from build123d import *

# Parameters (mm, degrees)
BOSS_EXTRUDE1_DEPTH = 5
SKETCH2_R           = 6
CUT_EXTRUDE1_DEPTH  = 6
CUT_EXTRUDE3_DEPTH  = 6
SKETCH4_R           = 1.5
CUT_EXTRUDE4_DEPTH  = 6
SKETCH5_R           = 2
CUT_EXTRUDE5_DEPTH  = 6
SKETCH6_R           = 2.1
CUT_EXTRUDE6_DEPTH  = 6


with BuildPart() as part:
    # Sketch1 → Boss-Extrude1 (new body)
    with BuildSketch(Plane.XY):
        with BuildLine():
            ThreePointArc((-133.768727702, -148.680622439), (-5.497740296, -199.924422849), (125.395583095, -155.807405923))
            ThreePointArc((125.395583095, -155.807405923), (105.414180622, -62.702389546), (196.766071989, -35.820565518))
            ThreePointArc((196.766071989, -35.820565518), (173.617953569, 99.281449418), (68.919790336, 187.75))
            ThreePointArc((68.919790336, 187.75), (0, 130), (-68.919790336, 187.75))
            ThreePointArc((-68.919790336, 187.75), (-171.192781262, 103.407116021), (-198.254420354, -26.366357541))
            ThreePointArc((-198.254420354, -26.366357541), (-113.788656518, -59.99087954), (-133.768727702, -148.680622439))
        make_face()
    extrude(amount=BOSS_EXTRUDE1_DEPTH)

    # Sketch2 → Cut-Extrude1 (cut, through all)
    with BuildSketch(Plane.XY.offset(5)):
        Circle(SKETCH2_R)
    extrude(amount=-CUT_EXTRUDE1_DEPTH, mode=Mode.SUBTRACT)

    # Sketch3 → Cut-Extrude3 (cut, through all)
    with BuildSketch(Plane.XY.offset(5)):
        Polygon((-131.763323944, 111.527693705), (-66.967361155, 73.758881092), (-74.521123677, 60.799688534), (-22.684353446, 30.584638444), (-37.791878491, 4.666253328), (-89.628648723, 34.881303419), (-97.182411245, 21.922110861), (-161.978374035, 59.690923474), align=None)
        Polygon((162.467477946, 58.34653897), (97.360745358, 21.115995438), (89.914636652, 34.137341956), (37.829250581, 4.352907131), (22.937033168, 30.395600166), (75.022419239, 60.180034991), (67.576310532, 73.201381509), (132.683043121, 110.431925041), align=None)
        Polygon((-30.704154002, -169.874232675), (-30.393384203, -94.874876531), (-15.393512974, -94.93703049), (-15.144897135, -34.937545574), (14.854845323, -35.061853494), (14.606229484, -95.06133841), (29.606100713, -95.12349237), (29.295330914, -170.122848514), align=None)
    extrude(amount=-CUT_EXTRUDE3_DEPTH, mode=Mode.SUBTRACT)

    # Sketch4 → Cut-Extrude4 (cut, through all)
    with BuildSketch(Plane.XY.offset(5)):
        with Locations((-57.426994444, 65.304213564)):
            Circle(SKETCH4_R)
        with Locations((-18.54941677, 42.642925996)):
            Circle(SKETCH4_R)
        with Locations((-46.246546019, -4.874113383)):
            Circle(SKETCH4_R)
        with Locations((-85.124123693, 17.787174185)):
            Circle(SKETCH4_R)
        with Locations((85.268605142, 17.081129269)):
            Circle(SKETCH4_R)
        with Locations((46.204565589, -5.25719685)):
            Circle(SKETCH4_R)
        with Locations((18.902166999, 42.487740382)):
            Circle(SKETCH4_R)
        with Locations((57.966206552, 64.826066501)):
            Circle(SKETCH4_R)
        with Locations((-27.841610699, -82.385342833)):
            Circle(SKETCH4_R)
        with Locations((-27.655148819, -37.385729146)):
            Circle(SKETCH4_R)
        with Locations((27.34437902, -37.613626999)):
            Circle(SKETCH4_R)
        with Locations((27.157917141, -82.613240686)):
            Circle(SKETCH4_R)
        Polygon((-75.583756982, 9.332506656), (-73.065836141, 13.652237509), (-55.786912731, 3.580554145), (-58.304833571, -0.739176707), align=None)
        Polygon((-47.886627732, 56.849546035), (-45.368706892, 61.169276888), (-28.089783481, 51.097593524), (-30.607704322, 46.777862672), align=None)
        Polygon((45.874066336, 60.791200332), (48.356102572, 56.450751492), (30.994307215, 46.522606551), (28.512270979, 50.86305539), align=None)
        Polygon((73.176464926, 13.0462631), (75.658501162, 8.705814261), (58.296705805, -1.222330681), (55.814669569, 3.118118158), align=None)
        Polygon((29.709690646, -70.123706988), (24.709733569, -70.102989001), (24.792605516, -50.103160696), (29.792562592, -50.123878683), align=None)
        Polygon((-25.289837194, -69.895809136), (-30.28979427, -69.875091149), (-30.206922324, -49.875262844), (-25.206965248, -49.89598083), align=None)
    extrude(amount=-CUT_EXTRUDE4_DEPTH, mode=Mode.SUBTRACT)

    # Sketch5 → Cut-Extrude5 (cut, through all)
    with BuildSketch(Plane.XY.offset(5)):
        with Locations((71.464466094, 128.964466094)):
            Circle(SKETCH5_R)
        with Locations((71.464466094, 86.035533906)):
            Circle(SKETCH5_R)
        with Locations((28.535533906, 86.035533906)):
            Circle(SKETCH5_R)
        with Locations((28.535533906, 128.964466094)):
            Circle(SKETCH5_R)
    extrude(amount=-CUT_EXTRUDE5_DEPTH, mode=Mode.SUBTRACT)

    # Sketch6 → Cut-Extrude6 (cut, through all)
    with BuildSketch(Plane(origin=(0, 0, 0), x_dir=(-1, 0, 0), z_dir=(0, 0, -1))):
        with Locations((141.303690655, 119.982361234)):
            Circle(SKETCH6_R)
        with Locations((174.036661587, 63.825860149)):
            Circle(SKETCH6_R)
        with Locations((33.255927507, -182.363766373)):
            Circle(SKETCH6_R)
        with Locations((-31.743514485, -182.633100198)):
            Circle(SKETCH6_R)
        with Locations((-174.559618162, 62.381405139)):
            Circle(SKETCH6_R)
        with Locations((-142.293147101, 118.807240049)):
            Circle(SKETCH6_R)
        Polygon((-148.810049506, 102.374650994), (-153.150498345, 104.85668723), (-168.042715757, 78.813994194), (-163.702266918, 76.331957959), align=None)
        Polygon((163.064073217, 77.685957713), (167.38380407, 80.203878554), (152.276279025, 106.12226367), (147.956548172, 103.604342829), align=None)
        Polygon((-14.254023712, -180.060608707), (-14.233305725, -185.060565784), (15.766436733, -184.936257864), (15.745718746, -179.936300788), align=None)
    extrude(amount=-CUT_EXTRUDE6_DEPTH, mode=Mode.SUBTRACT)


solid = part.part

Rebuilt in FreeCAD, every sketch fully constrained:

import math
import FreeCAD as App
import Part
import Sketcher

V = App.Vector
Q = App.Units.Quantity


def add_polygon(sketch, points):
    """Adds a closed chain of lines whose ends are joined by coincident constraints."""
    first, n = sketch.GeometryCount, len(points)
    for a, b in zip(points, points[1:] + points[:1]):
        sketch.addGeometry(Part.LineSegment(App.Vector(*a, 0), App.Vector(*b, 0)), False)
    for i in range(n):
        sketch.addConstraint(Sketcher.Constraint("Coincident", first + i, 2, first + (i + 1) % n, 1))

doc = App.newDocument("Part")
params = doc.addObject("Spreadsheet::Sheet", "Params")
for row, (alias, value) in enumerate([
    ("sketch1_radius", "200 mm"),
    ("sketch1_radius2", "70 mm"),
    ("pad1_length", "5 mm"),
    ("sketch2_diameter", "12 mm"),
    ("sketch3_length", "75 mm"),
    ("sketch3_length2", "60 mm"),
    ("sketch3_length3", "15 mm"),
    ("sketch4_diameter", "3 mm"),
    ("sketch4_length", "5 mm"),
    ("sketch4_length2", "20 mm"),
    ("sketch5_diameter", "4 mm"),
    ("sketch6_diameter", "4.2 mm"),
    ("sketch6_length", "5 mm"),
    ("sketch6_length2", "30 mm"),
], start=1):
    params.set(f"A{row}", alias)
    params.set(f"B{row}", "=" + value)
    params.setAlias(f"B{row}", alias)

body = doc.addObject("PartDesign::Body", "Body")

sketch1 = body.newObject("Sketcher::SketchObject", "Sketch")
sketch1.AttachmentSupport = (doc.getObject("XY_Plane"), [""])
sketch1.MapMode = "FlatFace"
sketch1.addGeometry([
    Part.ArcOfCircle(Part.Circle(V(0, 0, 0), V(0, 0, 1), 200), math.radians(-131.977879), math.radians(-51.172491)),
    Part.ArcOfCircle(Part.Circle(V(165.575753, -98.487654, 0), V(0, 0, 1), 70), math.radians(63.539804), math.radians(234.970198)),
    Part.ArcOfCircle(Part.Circle(V(0, 0, 0), V(0, 0, 1), 200), math.radians(-10.317506), math.radians(69.842684)),
    Part.ArcOfCircle(Part.Circle(V(0, 200, 0), V(0, 0, 1), 70), math.radians(-169.921342), math.radians(-10.078658)),
    Part.ArcOfCircle(Part.Circle(V(0, 0, 0), V(0, 0, 1), 200), math.radians(110.157316), math.radians(187.575457)),
    Part.ArcOfCircle(Part.Circle(V(-175.710015, -92.636636, 0), V(0, 0, 1), 70), math.radians(-53.19015), math.radians(108.787729)),
], False)
sketch1.addConstraint([
    Sketcher.Constraint("Coincident", 0, 2, 1, 2),
    Sketcher.Constraint("Coincident", 1, 1, 2, 1),
    Sketcher.Constraint("Coincident", 2, 2, 3, 2),
    Sketcher.Constraint("Coincident", 3, 1, 4, 1),
    Sketcher.Constraint("Coincident", 4, 2, 5, 2),
    Sketcher.Constraint("Coincident", 5, 1, 0, 1),
    Sketcher.Constraint("Coincident", 0, 3, -1, 1),
    Sketcher.Constraint("Coincident", 2, 3, -1, 1),
    Sketcher.Constraint("Coincident", 4, 3, -1, 1),
    Sketcher.Constraint("Equal", 0, 2),
    Sketcher.Constraint("Equal", 1, 3),
    Sketcher.Constraint("Equal", 2, 4),
    Sketcher.Constraint("Equal", 3, 5),
    Sketcher.Constraint("PointOnObject", 3, 3, -2),
    Sketcher.Constraint("Radius", 0, Q("200 mm")),
    Sketcher.Constraint("Radius", 1, Q("70 mm")),
    Sketcher.Constraint("DistanceY", -1, 1, 3, 3, Q("200 mm")),
    Sketcher.Constraint("DistanceX", -1, 1, 1, 1, Q("196.766072 mm")),
    Sketcher.Constraint("DistanceX", 4, 2, -1, 1, Q("198.25442 mm")),
    Sketcher.Constraint("DistanceX", 5, 3, 1, 3, Q("341.285768 mm")),
    Sketcher.Constraint("DistanceY", 1, 3, 5, 3, Q("5.851019 mm")),
])
sketch1.setExpression("Constraints[14]", "Params.sketch1_radius")
sketch1.setExpression("Constraints[15]", "Params.sketch1_radius2")
pad1 = body.newObject("PartDesign::Pad", "Pad")
pad1.Profile = sketch1
pad1.setExpression("Length", "Params.pad1_length")

sketch2 = body.newObject("Sketcher::SketchObject", "Sketch001")
sketch2.AttachmentSupport = (doc.getObject("XY_Plane"), [""])
sketch2.MapMode = "FlatFace"
sketch2.AttachmentOffset = App.Placement(V(0, 0, 5), App.Rotation())
sketch2.addGeometry(Part.Circle(V(0, 0, 0), V(0, 0, 1), 6), False)
sketch2.addConstraint([
    Sketcher.Constraint("Coincident", 0, 3, -1, 1),
    Sketcher.Constraint("Diameter", 0, Q("12 mm")),
])
sketch2.setExpression("Constraints[1]", "Params.sketch2_diameter")
pocket1 = body.newObject("PartDesign::Pocket", "Pocket")
pocket1.Profile = sketch2
pocket1.Type = "ThroughAll"

sketch3 = body.newObject("Sketcher::SketchObject", "Sketch002")
sketch3.AttachmentSupport = (doc.getObject("XY_Plane"), [""])
sketch3.MapMode = "FlatFace"
sketch3.AttachmentOffset = App.Placement(V(0, 0, 5), App.Rotation())
add_polygon(sketch3, [(-66.967361, 73.758881), (-131.763324, 111.527694), (-161.978374, 59.690923), (-97.182411, 21.922111), (-89.628649, 34.881303), (-37.791878, 4.666253), (-22.684353, 30.584638), (-74.521124, 60.799689)])
add_polygon(sketch3, [(97.360745, 21.115995), (162.467478, 58.346539), (132.683043, 110.431925), (67.576311, 73.201382), (75.022419, 60.180035), (22.937033, 30.3956), (37.829251, 4.352907), (89.914637, 34.137342)])
add_polygon(sketch3, [(-30.393384, -94.874877), (-30.704154, -169.874233), (29.295331, -170.122849), (29.606101, -95.123492), (14.606229, -95.061338), (14.854845, -35.061853), (-15.144897, -34.937546), (-15.393513, -94.93703)])
sketch3.addConstraint([
    Sketcher.Constraint("Perpendicular", 0, 1),
    Sketcher.Constraint("Perpendicular", 1, 2),
    Sketcher.Constraint("Perpendicular", 2, 3),
    Sketcher.Constraint("Perpendicular", 3, 4),
    Sketcher.Constraint("Perpendicular", 4, 5),
    Sketcher.Constraint("Perpendicular", 5, 6),
    Sketcher.Constraint("Perpendicular", 6, 7),
    Sketcher.Constraint("Perpendicular", 8, 9),
    Sketcher.Constraint("Perpendicular", 9, 10),
    Sketcher.Constraint("Perpendicular", 10, 11),
    Sketcher.Constraint("Perpendicular", 11, 12),
    Sketcher.Constraint("Perpendicular", 12, 13),
    Sketcher.Constraint("Perpendicular", 13, 14),
    Sketcher.Constraint("Perpendicular", 14, 15),
    Sketcher.Constraint("Perpendicular", 16, 17),
    Sketcher.Constraint("Perpendicular", 17, 18),
    Sketcher.Constraint("Perpendicular", 18, 19),
    Sketcher.Constraint("Perpendicular", 19, 20),
    Sketcher.Constraint("Perpendicular", 20, 21),
    Sketcher.Constraint("Perpendicular", 21, 22),
    Sketcher.Constraint("Perpendicular", 22, 23),
    Sketcher.Constraint("Equal", 0, 2),
    Sketcher.Constraint("Equal", 1, 4),
    Sketcher.Constraint("Equal", 3, 7),
    Sketcher.Constraint("Equal", 2, 8),
    Sketcher.Constraint("Equal", 6, 9),
    Sketcher.Constraint("Equal", 8, 10),
    Sketcher.Constraint("Equal", 7, 11),
    Sketcher.Constraint("Equal", 9, 12),
    Sketcher.Constraint("Equal", 5, 13),
    Sketcher.Constraint("Equal", 10, 16),
    Sketcher.Constraint("Equal", 14, 17),
    Sketcher.Constraint("Equal", 16, 18),
    Sketcher.Constraint("Equal", 15, 19),
    Sketcher.Constraint("Equal", 17, 20),
    Sketcher.Constraint("Equal", 13, 21),
    Sketcher.Constraint("Distance", 0, Q("75 mm")),
    Sketcher.Constraint("Distance", 1, Q("60 mm")),
    Sketcher.Constraint("Distance", 3, Q("15 mm")),
    Sketcher.Constraint("DistanceY", -1, 1, 12, 2, Q("30.3956 mm")),
    Sketcher.Constraint("DistanceX", -1, 1, 18, 2, Q("29.606101 mm")),
    Sketcher.Constraint("DistanceX", 0, 2, 6, 2, Q("57.2422 mm")),
    Sketcher.Constraint("DistanceY", 5, 2, 8, 2, Q("27.761901 mm")),
    Sketcher.Constraint("DistanceX", 6, 2, 8, 2, Q("236.988602 mm")),
    Sketcher.Constraint("DistanceY", 10, 2, 7, 2, Q("0.5575 mm")),
    Sketcher.Constraint("DistanceX", 16, 2, 5, 2, Q("8.019801 mm")),
    Sketcher.Constraint("DistanceY", 17, 2, 4, 2, Q("174.789102 mm")),
    Sketcher.Constraint("DistanceX", 19, 2, 17, 2, Q("14.689101 mm")),
])
sketch3.setExpression("Constraints[60]", "Params.sketch3_length")
sketch3.setExpression("Constraints[61]", "Params.sketch3_length2")
sketch3.setExpression("Constraints[62]", "Params.sketch3_length3")
pocket2 = body.newObject("PartDesign::Pocket", "Pocket001")
pocket2.Profile = sketch3
pocket2.Type = "ThroughAll"

sketch4 = body.newObject("Sketcher::SketchObject", "Sketch003")
sketch4.AttachmentSupport = (doc.getObject("XY_Plane"), [""])
sketch4.MapMode = "FlatFace"
sketch4.AttachmentOffset = App.Placement(V(0, 0, 5), App.Rotation())
sketch4.addGeometry(Part.Circle(V(-57.426994, 65.304214, 0), V(0, 0, 1), 1.5), False)
sketch4.addGeometry(Part.Circle(V(-18.549417, 42.642926, 0), V(0, 0, 1), 1.5), False)
sketch4.addGeometry(Part.Circle(V(-46.246546, -4.874113, 0), V(0, 0, 1), 1.5), False)
sketch4.addGeometry(Part.Circle(V(-85.124124, 17.787174, 0), V(0, 0, 1), 1.5), False)
sketch4.addGeometry(Part.Circle(V(85.268605, 17.081129, 0), V(0, 0, 1), 1.5), False)
sketch4.addGeometry(Part.Circle(V(46.204566, -5.257197, 0), V(0, 0, 1), 1.5), False)
sketch4.addGeometry(Part.Circle(V(18.902167, 42.48774, 0), V(0, 0, 1), 1.5), False)
sketch4.addGeometry(Part.Circle(V(57.966207, 64.826067, 0), V(0, 0, 1), 1.5), False)
sketch4.addGeometry(Part.Circle(V(-27.841611, -82.385343, 0), V(0, 0, 1), 1.5), False)
sketch4.addGeometry(Part.Circle(V(-27.655149, -37.385729, 0), V(0, 0, 1), 1.5), False)
sketch4.addGeometry(Part.Circle(V(27.344379, -37.613627, 0), V(0, 0, 1), 1.5), False)
sketch4.addGeometry(Part.Circle(V(27.157917, -82.613241, 0), V(0, 0, 1), 1.5), False)
add_polygon(sketch4, [(-73.065836, 13.652238), (-75.583757, 9.332507), (-58.304834, -0.739177), (-55.786913, 3.580554)])
add_polygon(sketch4, [(-45.368707, 61.169277), (-47.886628, 56.849546), (-30.607704, 46.777863), (-28.089783, 51.097594)])
add_polygon(sketch4, [(48.356103, 56.450751), (45.874066, 60.7912), (28.512271, 50.863055), (30.994307, 46.522607)])
add_polygon(sketch4, [(75.658501, 8.705814), (73.176465, 13.046263), (55.81467, 3.118118), (58.296706, -1.222331)])
add_polygon(sketch4, [(24.709734, -70.102989), (29.709691, -70.123707), (29.792563, -50.123879), (24.792606, -50.103161)])
add_polygon(sketch4, [(-30.289794, -69.875091), (-25.289837, -69.895809), (-25.206965, -49.895981), (-30.206922, -49.875263)])
sketch4.addConstraint([
    Sketcher.Constraint("Equal", 0, 1),
    Sketcher.Constraint("Equal", 1, 2),
    Sketcher.Constraint("Equal", 2, 3),
    Sketcher.Constraint("Equal", 3, 4),
    Sketcher.Constraint("Equal", 4, 5),
    Sketcher.Constraint("Equal", 5, 6),
    Sketcher.Constraint("Equal", 6, 7),
    Sketcher.Constraint("Equal", 7, 8),
    Sketcher.Constraint("Equal", 8, 9),
    Sketcher.Constraint("Equal", 9, 10),
    Sketcher.Constraint("Equal", 10, 11),
    Sketcher.Constraint("Perpendicular", 12, 13),
    Sketcher.Constraint("Perpendicular", 13, 14),
    Sketcher.Constraint("Perpendicular", 14, 15),
    Sketcher.Constraint("Perpendicular", 15, 16),
    Sketcher.Constraint("Perpendicular", 16, 17),
    Sketcher.Constraint("Perpendicular", 17, 18),
    Sketcher.Constraint("Perpendicular", 18, 19),
    Sketcher.Constraint("Perpendicular", 20, 21),
    Sketcher.Constraint("Perpendicular", 21, 22),
    Sketcher.Constraint("Perpendicular", 22, 23),
    Sketcher.Constraint("Perpendicular", 23, 24),
    Sketcher.Constraint("Perpendicular", 24, 25),
    Sketcher.Constraint("Perpendicular", 25, 26),
    Sketcher.Constraint("Perpendicular", 26, 27),
    Sketcher.Constraint("Perpendicular", 28, 29),
    Sketcher.Constraint("Perpendicular", 29, 30),
    Sketcher.Constraint("Perpendicular", 30, 31),
    Sketcher.Constraint("Perpendicular", 31, 32),
    Sketcher.Constraint("Perpendicular", 32, 33),
    Sketcher.Constraint("Perpendicular", 33, 34),
    Sketcher.Constraint("Perpendicular", 34, 35),
    Sketcher.Constraint("Equal", 14, 16),
    Sketcher.Constraint("Equal", 15, 17),
    Sketcher.Constraint("Equal", 18, 20),
    Sketcher.Constraint("Equal", 19, 21),
    Sketcher.Constraint("Equal", 22, 24),
    Sketcher.Constraint("Equal", 23, 25),
    Sketcher.Constraint("Equal", 26, 28),
    Sketcher.Constraint("Equal", 27, 29),
    Sketcher.Constraint("Equal", 30, 32),
    Sketcher.Constraint("Equal", 31, 33),
    Sketcher.Constraint("Diameter", 0, Q("3 mm")),
    Sketcher.Constraint("Distance", 12, Q("5 mm")),
    Sketcher.Constraint("Distance", 13, Q("20 mm")),
    Sketcher.Constraint("DistanceY", -1, 1, 20, 2, Q("60.7912 mm")),
    Sketcher.Constraint("DistanceX", -1, 1, 27, 2, Q("75.658501 mm")),
    Sketcher.Constraint("DistanceX", 0, 3, 4, 3, Q("142.6956 mm")),
    Sketcher.Constraint("DistanceX", 6, 3, 5, 3, Q("27.302399 mm")),
    Sketcher.Constraint("DistanceX", 7, 3, 4, 3, Q("27.302399 mm")),
    Sketcher.Constraint("DistanceX", 6, 3, 20, 2, Q("26.971899 mm")),
    Sketcher.Constraint("DistanceX", 22, 2, 7, 3, Q("26.971899 mm")),
    Sketcher.Constraint("DistanceX", 5, 3, 24, 2, Q("26.971899 mm")),
    Sketcher.Constraint("DistanceX", 8, 3, 28, 2, Q("57.551301 mm")),
    Sketcher.Constraint("DistanceY", -1, 1, 4, 3, Q("17.081129 mm")),
    Sketcher.Constraint("DistanceY", -1, 1, 6, 3, Q("42.48774 mm")),
    Sketcher.Constraint("DistanceX", 8, 3, -1, 1, Q("27.841611 mm")),
    Sketcher.Constraint("DistanceX", 9, 3, -1, 1, Q("27.655149 mm")),
    Sketcher.Constraint("DistanceY", 9, 3, -1, 1, Q("37.385729 mm")),
    Sketcher.Constraint("DistanceX", -1, 1, 10, 3, Q("27.344379 mm")),
    Sketcher.Constraint("DistanceY", 11, 3, -1, 1, Q("82.613241 mm")),
    Sketcher.Constraint("DistanceX", -1, 1, 21, 2, Q("28.512271 mm")),
    Sketcher.Constraint("DistanceY", -1, 1, 25, 2, Q("3.118118 mm")),
    Sketcher.Constraint("DistanceY", 29, 2, -1, 1, Q("50.123879 mm")),
    Sketcher.Constraint("DistanceY", 30, 2, -1, 1, Q("50.103161 mm")),
    Sketcher.Constraint("DistanceY", 32, 2, -1, 1, Q("69.895809 mm")),
    Sketcher.Constraint("DistanceX", 2, 3, 1, 3, Q("27.697129 mm")),
    Sketcher.Constraint("DistanceY", 2, 3, 1, 3, Q("47.517039 mm")),
    Sketcher.Constraint("DistanceX", 0, 3, 2, 3, Q("11.180448 mm")),
    Sketcher.Constraint("DistanceX", 3, 3, 0, 3, Q("27.697129 mm")),
    Sketcher.Constraint("DistanceY", 3, 3, 0, 3, Q("47.517039 mm")),
    Sketcher.Constraint("DistanceY", 3, 3, 1, 3, Q("24.855752 mm")),
    Sketcher.Constraint("DistanceY", 5, 3, 0, 3, Q("70.56141 mm")),
    Sketcher.Constraint("DistanceY", 1, 3, 7, 3, Q("22.183141 mm")),
    Sketcher.Constraint("DistanceY", 8, 3, 2, 3, Q("77.511229 mm")),
    Sketcher.Constraint("DistanceY", 10, 3, 5, 3, Q("32.35643 mm")),
    Sketcher.Constraint("DistanceX", 11, 3, 10, 3, Q("0.186462 mm")),
    Sketcher.Constraint("DistanceX", 12, 2, 2, 3, Q("29.337211 mm")),
    Sketcher.Constraint("DistanceY", 2, 3, 12, 2, Q("14.20662 mm")),
    Sketcher.Constraint("DistanceX", 3, 3, 13, 2, Q("26.81929 mm")),
    Sketcher.Constraint("DistanceX", 16, 2, 1, 3, Q("29.337211 mm")),
    Sketcher.Constraint("DistanceY", 1, 3, 16, 2, Q("14.20662 mm")),
    Sketcher.Constraint("DistanceY", 21, 2, 7, 3, Q("13.963011 mm")),
    Sketcher.Constraint("DistanceX", 9, 3, 32, 2, Q("2.365312 mm")),
])
sketch4.setExpression("Constraints[66]", "Params.sketch4_diameter")
sketch4.setExpression("Constraints[67]", "Params.sketch4_length")
sketch4.setExpression("Constraints[68]", "Params.sketch4_length2")
pocket3 = body.newObject("PartDesign::Pocket", "Pocket002")
pocket3.Profile = sketch4
pocket3.Type = "ThroughAll"

sketch5 = body.newObject("Sketcher::SketchObject", "Sketch004")
sketch5.AttachmentSupport = (doc.getObject("XY_Plane"), [""])
sketch5.MapMode = "FlatFace"
sketch5.AttachmentOffset = App.Placement(V(0, 0, 5), App.Rotation())
sketch5.addGeometry([
    Part.Circle(V(71.464466, 128.964466, 0), V(0, 0, 1), 2),
    Part.Circle(V(71.464466, 86.035534, 0), V(0, 0, 1), 2),
    Part.Circle(V(28.535534, 86.035534, 0), V(0, 0, 1), 2),
    Part.Circle(V(28.535534, 128.964466, 0), V(0, 0, 1), 2),
], False)
sketch5.addConstraint([
    Sketcher.Constraint("Equal", 0, 1),
    Sketcher.Constraint("Equal", 1, 2),
    Sketcher.Constraint("Equal", 2, 3),
    Sketcher.Constraint("Horizontal", 1, 3, 2, 3),
    Sketcher.Constraint("Horizontal", 0, 3, 3, 3),
    Sketcher.Constraint("Vertical", 0, 3, 1, 3),
    Sketcher.Constraint("Vertical", 2, 3, 3, 3),
    Sketcher.Constraint("Diameter", 0, Q("4 mm")),
    Sketcher.Constraint("DistanceX", -1, 1, 0, 3, Q("71.464466 mm")),
    Sketcher.Constraint("DistanceY", -1, 1, 0, 3, Q("128.964466 mm")),
    Sketcher.Constraint("DistanceY", -1, 1, 1, 3, Q("86.035534 mm")),
    Sketcher.Constraint("DistanceX", -1, 1, 2, 3, Q("28.535534 mm")),
])
sketch5.setExpression("Constraints[7]", "Params.sketch5_diameter")
pocket4 = body.newObject("PartDesign::Pocket", "Pocket003")
pocket4.Profile = sketch5
pocket4.Type = "ThroughAll"

sketch6 = body.newObject("Sketcher::SketchObject", "Sketch005")
sketch6.AttachmentSupport = (doc.getObject("XY_Plane"), [""])
sketch6.MapMode = "FlatFace"
sketch6.addGeometry(Part.Circle(V(-141.303691, 119.982361, 0), V(0, 0, 1), 2.1), False)
sketch6.addGeometry(Part.Circle(V(-174.036662, 63.82586, 0), V(0, 0, 1), 2.1), False)
sketch6.addGeometry(Part.Circle(V(-33.255928, -182.363766, 0), V(0, 0, 1), 2.1), False)
sketch6.addGeometry(Part.Circle(V(31.743514, -182.6331, 0), V(0, 0, 1), 2.1), False)
sketch6.addGeometry(Part.Circle(V(174.559618, 62.381405, 0), V(0, 0, 1), 2.1), False)
sketch6.addGeometry(Part.Circle(V(142.293147, 118.80724, 0), V(0, 0, 1), 2.1), False)
add_polygon(sketch6, [(148.81005, 102.374651), (153.150498, 104.856687), (168.042716, 78.813994), (163.702267, 76.331958)])
add_polygon(sketch6, [(-163.064073, 77.685958), (-167.383804, 80.203879), (-152.276279, 106.122264), (-147.956548, 103.604343)])
add_polygon(sketch6, [(14.254024, -180.060609), (14.233306, -185.060566), (-15.766437, -184.936258), (-15.745719, -179.936301)])
sketch6.addConstraint([
    Sketcher.Constraint("Equal", 0, 1),
    Sketcher.Constraint("Equal", 1, 2),
    Sketcher.Constraint("Equal", 2, 3),
    Sketcher.Constraint("Equal", 3, 4),
    Sketcher.Constraint("Equal", 4, 5),
    Sketcher.Constraint("Perpendicular", 6, 7),
    Sketcher.Constraint("Perpendicular", 7, 8),
    Sketcher.Constraint("Perpendicular", 8, 9),
    Sketcher.Constraint("Perpendicular", 10, 11),
    Sketcher.Constraint("Perpendicular", 11, 12),
    Sketcher.Constraint("Perpendicular", 12, 13),
    Sketcher.Constraint("Perpendicular", 14, 15),
    Sketcher.Constraint("Perpendicular", 15, 16),
    Sketcher.Constraint("Perpendicular", 16, 17),
    Sketcher.Constraint("Equal", 8, 10),
    Sketcher.Constraint("Equal", 9, 11),
    Sketcher.Constraint("Equal", 12, 14),
    Sketcher.Constraint("Equal", 13, 15),
    Sketcher.Constraint("Diameter", 0, Q("4.2 mm")),
    Sketcher.Constraint("Distance", 6, Q("5 mm")),
    Sketcher.Constraint("Distance", 7, Q("30 mm")),
    Sketcher.Constraint("DistanceY", 3, 3, -1, 1, Q("182.6331 mm")),
    Sketcher.Constraint("DistanceX", -1, 1, 6, 2, Q("153.150498 mm")),
    Sketcher.Constraint("DistanceY", 16, 2, -1, 1, Q("179.936301 mm")),
    Sketcher.Constraint("DistanceY", 1, 3, 0, 3, Q("56.156501 mm")),
    Sketcher.Constraint("DistanceX", 3, 3, 7, 2, Q("136.299201 mm")),
    Sketcher.Constraint("DistanceY", 14, 2, 2, 3, Q("2.696799 mm")),
    Sketcher.Constraint("DistanceX", 0, 3, -1, 1, Q("141.303691 mm")),
    Sketcher.Constraint("DistanceY", -1, 1, 0, 3, Q("119.982361 mm")),
    Sketcher.Constraint("DistanceX", 1, 3, -1, 1, Q("174.036662 mm")),
    Sketcher.Constraint("DistanceX", -1, 1, 4, 3, Q("174.559618 mm")),
    Sketcher.Constraint("DistanceY", -1, 1, 5, 3, Q("118.80724 mm")),
    Sketcher.Constraint("DistanceX", -1, 1, 9, 2, Q("148.81005 mm")),
    Sketcher.Constraint("DistanceY", -1, 1, 9, 2, Q("102.374651 mm")),
    Sketcher.Constraint("DistanceY", -1, 1, 10, 2, Q("80.203879 mm")),
    Sketcher.Constraint("DistanceX", 11, 2, -1, 1, Q("152.276279 mm")),
    Sketcher.Constraint("DistanceX", 12, 2, -1, 1, Q("147.956548 mm")),
    Sketcher.Constraint("DistanceX", 16, 2, -1, 1, Q("15.745719 mm")),
    Sketcher.Constraint("DistanceY", 17, 2, -1, 1, Q("180.060609 mm")),
    Sketcher.Constraint("DistanceX", 2, 3, 3, 3, Q("64.999442 mm")),
    Sketcher.Constraint("DistanceY", 2, 3, 4, 3, Q("244.745172 mm")),
    Sketcher.Constraint("DistanceX", 5, 3, 4, 3, Q("32.266471 mm")),
])
sketch6.setExpression("Constraints[30]", "Params.sketch6_diameter")
sketch6.setExpression("Constraints[31]", "Params.sketch6_length")
sketch6.setExpression("Constraints[32]", "Params.sketch6_length2")
pocket5 = body.newObject("PartDesign::Pocket", "Pocket004")
pocket5.Profile = sketch6
pocket5.Type = "ThroughAll"
pocket5.Reversed = True

doc.recompute()
